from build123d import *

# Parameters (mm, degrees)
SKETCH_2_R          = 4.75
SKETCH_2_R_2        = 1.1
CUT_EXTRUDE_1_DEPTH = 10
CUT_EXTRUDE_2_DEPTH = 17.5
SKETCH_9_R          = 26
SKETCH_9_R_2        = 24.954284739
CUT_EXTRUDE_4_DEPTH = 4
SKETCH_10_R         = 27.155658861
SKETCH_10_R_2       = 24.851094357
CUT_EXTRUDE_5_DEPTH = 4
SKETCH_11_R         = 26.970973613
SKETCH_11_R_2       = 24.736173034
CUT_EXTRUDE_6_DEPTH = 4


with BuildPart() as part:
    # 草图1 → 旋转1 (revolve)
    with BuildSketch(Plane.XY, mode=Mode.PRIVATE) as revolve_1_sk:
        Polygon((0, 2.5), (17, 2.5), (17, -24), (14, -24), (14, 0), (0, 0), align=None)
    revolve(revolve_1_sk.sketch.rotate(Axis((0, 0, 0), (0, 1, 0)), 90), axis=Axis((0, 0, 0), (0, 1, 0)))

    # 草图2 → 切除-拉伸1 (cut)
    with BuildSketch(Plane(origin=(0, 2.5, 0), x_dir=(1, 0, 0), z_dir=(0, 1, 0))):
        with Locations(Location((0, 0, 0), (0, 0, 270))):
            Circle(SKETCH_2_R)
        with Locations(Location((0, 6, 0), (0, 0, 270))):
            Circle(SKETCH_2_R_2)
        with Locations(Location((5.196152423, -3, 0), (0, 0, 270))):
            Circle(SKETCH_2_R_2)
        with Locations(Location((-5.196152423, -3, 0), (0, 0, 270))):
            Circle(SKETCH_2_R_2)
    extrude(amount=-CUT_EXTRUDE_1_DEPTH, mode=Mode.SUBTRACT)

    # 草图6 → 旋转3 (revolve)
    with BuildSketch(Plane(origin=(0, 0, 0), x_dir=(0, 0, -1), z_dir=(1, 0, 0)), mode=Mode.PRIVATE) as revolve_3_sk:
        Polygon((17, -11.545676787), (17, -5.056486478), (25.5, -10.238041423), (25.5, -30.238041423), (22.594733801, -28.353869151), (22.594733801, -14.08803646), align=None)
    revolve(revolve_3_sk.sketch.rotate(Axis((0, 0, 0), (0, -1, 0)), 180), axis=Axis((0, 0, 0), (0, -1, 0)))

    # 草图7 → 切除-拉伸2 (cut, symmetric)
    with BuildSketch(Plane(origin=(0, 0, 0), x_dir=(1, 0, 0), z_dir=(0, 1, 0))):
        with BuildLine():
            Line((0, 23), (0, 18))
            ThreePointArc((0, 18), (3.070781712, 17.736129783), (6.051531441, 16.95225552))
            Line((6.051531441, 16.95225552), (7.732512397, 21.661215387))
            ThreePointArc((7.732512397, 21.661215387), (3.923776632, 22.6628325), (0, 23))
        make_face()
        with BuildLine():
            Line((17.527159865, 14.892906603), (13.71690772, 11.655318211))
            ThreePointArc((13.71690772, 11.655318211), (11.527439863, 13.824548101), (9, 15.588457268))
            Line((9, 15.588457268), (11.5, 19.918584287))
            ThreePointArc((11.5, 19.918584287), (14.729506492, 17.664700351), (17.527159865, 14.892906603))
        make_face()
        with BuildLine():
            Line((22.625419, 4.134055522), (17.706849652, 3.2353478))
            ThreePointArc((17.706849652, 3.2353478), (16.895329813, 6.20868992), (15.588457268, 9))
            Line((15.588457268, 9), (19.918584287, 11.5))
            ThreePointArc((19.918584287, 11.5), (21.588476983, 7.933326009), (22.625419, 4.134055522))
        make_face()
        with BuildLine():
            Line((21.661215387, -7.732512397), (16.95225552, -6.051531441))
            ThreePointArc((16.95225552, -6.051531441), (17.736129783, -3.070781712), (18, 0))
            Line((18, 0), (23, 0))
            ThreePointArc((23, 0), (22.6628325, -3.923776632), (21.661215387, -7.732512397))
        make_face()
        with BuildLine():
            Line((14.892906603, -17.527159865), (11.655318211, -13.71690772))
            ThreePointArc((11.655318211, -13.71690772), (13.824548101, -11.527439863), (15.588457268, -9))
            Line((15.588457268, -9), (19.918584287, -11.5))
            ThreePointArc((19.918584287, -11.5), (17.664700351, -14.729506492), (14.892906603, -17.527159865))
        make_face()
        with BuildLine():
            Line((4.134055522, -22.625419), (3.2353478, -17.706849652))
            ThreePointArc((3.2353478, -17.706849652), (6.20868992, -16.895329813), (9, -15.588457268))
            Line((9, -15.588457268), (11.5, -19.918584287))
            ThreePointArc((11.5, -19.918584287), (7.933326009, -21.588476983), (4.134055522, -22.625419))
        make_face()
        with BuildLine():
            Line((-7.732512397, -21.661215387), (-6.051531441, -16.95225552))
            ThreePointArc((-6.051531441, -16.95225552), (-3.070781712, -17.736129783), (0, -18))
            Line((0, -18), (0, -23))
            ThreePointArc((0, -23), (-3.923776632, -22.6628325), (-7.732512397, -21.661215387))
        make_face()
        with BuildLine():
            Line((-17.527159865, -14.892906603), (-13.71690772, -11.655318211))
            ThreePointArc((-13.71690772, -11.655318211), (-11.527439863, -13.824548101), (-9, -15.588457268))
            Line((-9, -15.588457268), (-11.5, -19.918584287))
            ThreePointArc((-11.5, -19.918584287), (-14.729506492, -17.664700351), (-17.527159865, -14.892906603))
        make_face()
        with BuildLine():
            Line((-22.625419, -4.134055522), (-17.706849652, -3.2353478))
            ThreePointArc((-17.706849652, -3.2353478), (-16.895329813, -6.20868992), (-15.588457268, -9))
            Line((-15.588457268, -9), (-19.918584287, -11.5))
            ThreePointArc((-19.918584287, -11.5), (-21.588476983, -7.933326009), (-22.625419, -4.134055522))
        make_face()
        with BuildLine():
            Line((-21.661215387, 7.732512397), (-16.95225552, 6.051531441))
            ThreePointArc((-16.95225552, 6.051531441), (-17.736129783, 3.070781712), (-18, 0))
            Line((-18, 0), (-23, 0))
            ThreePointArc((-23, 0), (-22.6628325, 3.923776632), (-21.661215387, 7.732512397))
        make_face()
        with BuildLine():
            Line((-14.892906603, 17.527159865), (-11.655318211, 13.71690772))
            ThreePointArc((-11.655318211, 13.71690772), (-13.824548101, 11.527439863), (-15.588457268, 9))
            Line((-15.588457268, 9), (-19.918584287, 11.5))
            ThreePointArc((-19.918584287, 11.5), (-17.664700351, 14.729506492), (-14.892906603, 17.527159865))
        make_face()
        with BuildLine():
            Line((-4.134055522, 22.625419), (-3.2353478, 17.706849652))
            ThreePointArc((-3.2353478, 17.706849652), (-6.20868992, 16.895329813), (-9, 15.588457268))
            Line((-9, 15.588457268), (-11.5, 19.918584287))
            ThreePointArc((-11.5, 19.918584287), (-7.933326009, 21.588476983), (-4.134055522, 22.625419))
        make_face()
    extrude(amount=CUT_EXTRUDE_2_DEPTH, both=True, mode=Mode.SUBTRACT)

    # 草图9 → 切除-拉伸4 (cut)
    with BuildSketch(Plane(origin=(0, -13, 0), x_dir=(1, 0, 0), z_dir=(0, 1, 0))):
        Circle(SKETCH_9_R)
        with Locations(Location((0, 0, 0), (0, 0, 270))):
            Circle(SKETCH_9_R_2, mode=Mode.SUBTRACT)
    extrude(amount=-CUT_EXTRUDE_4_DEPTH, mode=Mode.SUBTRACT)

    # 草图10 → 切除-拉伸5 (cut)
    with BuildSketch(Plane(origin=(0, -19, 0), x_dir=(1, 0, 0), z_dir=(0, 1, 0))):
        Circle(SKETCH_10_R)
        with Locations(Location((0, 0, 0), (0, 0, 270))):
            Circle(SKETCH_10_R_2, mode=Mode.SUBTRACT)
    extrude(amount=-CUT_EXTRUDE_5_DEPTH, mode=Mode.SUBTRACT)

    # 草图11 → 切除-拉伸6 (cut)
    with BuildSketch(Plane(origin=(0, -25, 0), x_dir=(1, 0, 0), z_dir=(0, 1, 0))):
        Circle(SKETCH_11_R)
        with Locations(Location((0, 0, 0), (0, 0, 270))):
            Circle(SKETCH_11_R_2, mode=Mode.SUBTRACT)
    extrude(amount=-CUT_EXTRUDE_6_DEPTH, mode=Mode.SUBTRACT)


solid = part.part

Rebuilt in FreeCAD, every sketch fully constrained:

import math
import FreeCAD as App
import Part
import Sketcher

V = App.Vector
Q = App.Units.Quantity

doc = App.newDocument("Part")
body = doc.addObject("PartDesign::Body", "Body")

# Sketch on XY plane
sketch1 = body.newObject("Sketcher::SketchObject", "Sketch")
sketch1.AttachmentSupport = (doc.getObject("XY_Plane"), [""])
sketch1.MapMode = "FlatFace"
sketch1.addGeometry([
    Part.LineSegment(V(17, 2.5, 0), V(0, 2.5, 0)),  # 0
    Part.LineSegment(V(0, 2.5, 0), V(0, 0, 0)),  # 1
    Part.LineSegment(V(0, 0, 0), V(14, 0, 0)),  # 2
    Part.LineSegment(V(14, 0, 0), V(14, -24, 0)),  # 3
    Part.LineSegment(V(14, -24, 0), V(17, -24, 0)),  # 4
    Part.LineSegment(V(17, -24, 0), V(17, 2.5, 0)),  # 5
], False)
sketch1.addConstraint([
    Sketcher.Constraint("Coincident", 0, 2, 1, 1),
    Sketcher.Constraint("Coincident", 1, 2, 2, 1),
    Sketcher.Constraint("Coincident", 2, 2, 3, 1),
    Sketcher.Constraint("Coincident", 3, 2, 4, 1),
    Sketcher.Constraint("Coincident", 4, 2, 5, 1),
    Sketcher.Constraint("Coincident", 5, 2, 0, 1),
    Sketcher.Constraint("Horizontal", 0),
    Sketcher.Constraint("Vertical", 1),
    Sketcher.Constraint("Horizontal", 2),
    Sketcher.Constraint("Vertical", 3),
    Sketcher.Constraint("Horizontal", 4),
    Sketcher.Constraint("Vertical", 5),
    Sketcher.Constraint("Coincident", 1, 2, -1, 1),
    Sketcher.Constraint("DistanceX", 0, 2, 0, 1, Q("17 mm")),
    Sketcher.Constraint("DistanceX", 2, 1, 2, 2, Q("14 mm")),
    Sketcher.Constraint("DistanceY", 3, 2, 3, 1, Q("24 mm")),
    Sketcher.Constraint("DistanceY", 1, 2, 1, 1, Q("2.5 mm")),
])
revolution = body.newObject("PartDesign::Revolution", "Revolution")
revolution.Profile = sketch1
revolution.ReferenceAxis = (sketch1, ["V_Axis"])
revolution.Angle = 360

# Sketch on XZ plane
sketch2 = body.newObject("Sketcher::SketchObject", "Sketch001")
sketch2.AttachmentSupport = (doc.getObject("XZ_Plane"), [""])
sketch2.MapMode = "FlatFace"
sketch2.AttachmentOffset = App.Placement(V(0, 0, -2.5), App.Rotation())
sketch2.addGeometry([
    Part.Circle(V(0, 0, 0), V(0, 0, 1), 4.75),
    Part.Circle(V(0, -6, 0), V(0, 0, 1), 1.1),
    Part.Circle(V(5.196152, 3, 0), V(0, 0, 1), 1.1),
    Part.Circle(V(-5.196152, 3, 0), V(0, 0, 1), 1.1),
], False)
sketch2.addConstraint([
    Sketcher.Constraint("Coincident", 0, 3, -1, 1),
    Sketcher.Constraint("Equal", 1, 2),
    Sketcher.Constraint("Equal", 2, 3),
    Sketcher.Constraint("Symmetric", 2, 3, 3, 3, -2),
    Sketcher.Constraint("PointOnObject", 1, 3, -2),
    Sketcher.Constraint("Diameter", 0, Q("9.5 mm")),
    Sketcher.Constraint("Diameter", 1, Q("2.2 mm")),
    Sketcher.Constraint("DistanceY", 1, 3, -1, 1, Q("6 mm")),
    Sketcher.Constraint("DistanceY", -1, 1, 2, 3, Q("3 mm")),
    Sketcher.Constraint("DistanceX", -1, 1, 2, 3, Q("5.196152 mm")),
])
pocket1 = body.newObject("PartDesign::Pocket", "Pocket")
pocket1.Profile = sketch2
pocket1.Length = 10
pocket1.Reversed = True

# Sketch on YZ plane
sketch3 = body.newObject("Sketcher::SketchObject", "Sketch002")
sketch3.AttachmentSupport = (doc.getObject("YZ_Plane"), [""])
sketch3.MapMode = "FlatFace"
sketch3.addGeometry([
    Part.LineSegment(V(-5.056486, -17, 0), V(-11.545677, -17, 0)),  # 0
    Part.LineSegment(V(-11.545677, -17, 0), V(-14.088036, -22.594734, 0)),  # 1
    Part.LineSegment(V(-14.088036, -22.594734, 0), V(-28.353869, -22.594734, 0)),  # 2
    Part.LineSegment(V(-28.353869, -22.594734, 0), V(-30.238041, -25.5, 0)),  # 3
    Part.LineSegment(V(-30.238041, -25.5, 0), V(-10.238041, -25.5, 0)),  # 4
    Part.LineSegment(V(-10.238041, -25.5, 0), V(-5.056486, -17, 0)),  # 5
], False)
sketch3.addConstraint([
    Sketcher.Constraint("Coincident", 0, 2, 1, 1),
    Sketcher.Constraint("Coincident", 1, 2, 2, 1),
    Sketcher.Constraint("Coincident", 2, 2, 3, 1),
    Sketcher.Constraint("Coincident", 3, 2, 4, 1),
    Sketcher.Constraint("Coincident", 4, 2, 5, 1),
    Sketcher.Constraint("Coincident", 5, 2, 0, 1),
    Sketcher.Constraint("Horizontal", 0),
    Sketcher.Constraint("Horizontal", 2),
    Sketcher.Constraint("Horizontal", 4),
    Sketcher.Constraint("DistanceX", 4, 1, 4, 2, Q("20 mm")),
    Sketcher.Constraint("DistanceY", 0, 2, -1, 1, Q("17 mm")),
    Sketcher.Constraint("DistanceY", 3, 2, -1, 1, Q("25.5 mm")),
    Sketcher.Constraint("DistanceX", 0, 2, 0, 1, Q("6.48919 mm")),
    Sketcher.Constraint("DistanceX", 2, 2, 2, 1, Q("14.265833 mm")),
    Sketcher.Constraint("DistanceX", 2, 2, -1, 1, Q("28.353869 mm")),
    Sketcher.Constraint("DistanceX", 3, 2, -1, 1, Q("30.238041 mm")),
    Sketcher.Constraint("DistanceX", 1, 2, 0, 2, Q("2.54236 mm")),
    Sketcher.Constraint("Distance", 1, Q("6.145294 mm")),
])
revolution2 = body.newObject("PartDesign::Revolution", "Revolution001")
revolution2.Profile = sketch3
revolution2.ReferenceAxis = (sketch3, ["H_Axis"])
revolution2.Angle = 360

# Sketch on XZ plane
sketch4 = body.newObject("Sketcher::SketchObject", "Sketch003")
sketch4.AttachmentSupport = (doc.getObject("XZ_Plane"), [""])
sketch4.MapMode = "FlatFace"
sketch4.addGeometry([
    Part.LineSegment(V(0, -23, 0), V(0, -18, 0)),  # 0
    Part.ArcOfCircle(Part.Circle(V(0, 0, 0), V(0, 0, 1), 18), math.radians(-90), math.radians(-70.354706)),  # 1
    Part.LineSegment(V(6.051531, -16.952256, 0), V(7.732512, -21.661215, 0)),  # 2
    Part.ArcOfCircle(Part.Circle(V(0, 0, 0), V(0, 0, 1), 23), math.radians(-90), math.radians(-70.354706)),  # 3
    Part.LineSegment(V(13.716908, -11.655318, 0), V(17.52716, -14.892907, 0)),  # 4
    Part.ArcOfCircle(Part.Circle(V(0, 0, 0), V(0, 0, 1), 23), math.radians(-60), math.radians(-40.354706)),  # 5
    Part.LineSegment(V(11.5, -19.918584, 0), V(9, -15.588457, 0)),  # 6
    Part.ArcOfCircle(Part.Circle(V(0, 0, 0), V(0, 0, 1), 18), math.radians(-60), math.radians(-40.354706)),  # 7
    Part.LineSegment(V(17.70685, -3.235348, 0), V(22.625419, -4.134056, 0)),  # 8
    Part.ArcOfCircle(Part.Circle(V(0, 0, 0), V(0, 0, 1), 23), math.radians(-30), math.radians(-10.354706)),  # 9
    Part.LineSegment(V(19.918584, -11.5, 0), V(15.588457, -9, 0)),  # 10
    Part.ArcOfCircle(Part.Circle(V(0, 0, 0), V(0, 0, 1), 18), math.radians(-30), math.radians(-10.354706)),  # 11
    Part.LineSegment(V(16.952256, 6.051531, 0), V(21.661215, 7.732512, 0)),  # 12
    Part.ArcOfCircle(Part.Circle(V(0, 0, 0), V(0, 0, 1), 23), math.radians(0), math.radians(19.645294)),  # 13
    Part.LineSegment(V(23, 0, 0), V(18, 0, 0)),  # 14
    Part.ArcOfCircle(Part.Circle(V(0, 0, 0), V(0, 0, 1), 18), math.radians(0), math.radians(19.645294)),  # 15
    Part.LineSegment(V(11.655318, 13.716908, 0), V(14.892907, 17.52716, 0)),  # 16
    Part.ArcOfCircle(Part.Circle(V(0, 0, 0), V(0, 0, 1), 23), math.radians(30), math.radians(49.645294)),  # 17
    Part.LineSegment(V(19.918584, 11.5, 0), V(15.588457, 9, 0)),  # 18
    Part.ArcOfCircle(Part.Circle(V(0, 0, 0), V(0, 0, 1), 18), math.radians(30), math.radians(49.645294)),  # 19
    Part.LineSegment(V(3.235348, 17.70685, 0), V(4.134056, 22.625419, 0)),  # 20
    Part.ArcOfCircle(Part.Circle(V(0, 0, 0), V(0, 0, 1), 23), math.radians(60), math.radians(79.645294)),  # 21
    Part.LineSegment(V(11.5, 19.918584, 0), V(9, 15.588457, 0)),  # 22
    Part.ArcOfCircle(Part.Circle(V(0, 0, 0), V(0, 0, 1), 18), math.radians(60), math.radians(79.645294)),  # 23
    Part.LineSegment(V(-6.051531, 16.952256, 0), V(-7.732512, 21.661215, 0)),  # 24
    Part.ArcOfCircle(Part.Circle(V(0, 0, 0), V(0, 0, 1), 23), math.radians(90), math.radians(109.645294)),  # 25
    Part.LineSegment(V(0, 23, 0), V(0, 18, 0)),  # 26
    Part.ArcOfCircle(Part.Circle(V(0, 0, 0), V(0, 0, 1), 18), math.radians(90), math.radians(109.645294)),  # 27
    Part.LineSegment(V(-13.716908, 11.655318, 0), V(-17.52716, 14.892907, 0)),  # 28
    Part.ArcOfCircle(Part.Circle(V(0, 0, 0), V(0, 0, 1), 23), math.radians(120), math.radians(139.645294)),  # 29
    Part.LineSegment(V(-11.5, 19.918584, 0), V(-9, 15.588457, 0)),  # 30
    Part.ArcOfCircle(Part.Circle(V(0, 0, 0), V(0, 0, 1), 18), math.radians(120), math.radians(139.645294)),  # 31
    Part.LineSegment(V(-17.70685, 3.235348, 0), V(-22.625419, 4.134056, 0)),  # 32
    Part.ArcOfCircle(Part.Circle(V(0, 0, 0), V(0, 0, 1), 23), math.radians(150), math.radians(169.645294)),  # 33
    Part.LineSegment(V(-19.918584, 11.5, 0), V(-15.588457, 9, 0)),  # 34
    Part.ArcOfCircle(Part.Circle(V(0, 0, 0), V(0, 0, 1), 18), math.radians(150), math.radians(169.645294)),  # 35
    Part.LineSegment(V(-16.952256, -6.051531, 0), V(-21.661215, -7.732512, 0)),  # 36
    Part.ArcOfCircle(Part.Circle(V(0, 0, 0), V(0, 0, 1), 23), math.radians(-180), math.radians(-160.354706)),  # 37
    Part.LineSegment(V(-23, 0, 0), V(-18, 0, 0)),  # 38
    Part.ArcOfCircle(Part.Circle(V(0, 0, 0), V(0, 0, 1), 18), math.radians(180), math.radians(199.645294)),  # 39
    Part.LineSegment(V(-11.655318, -13.716908, 0), V(-14.892907, -17.52716, 0)),  # 40
    Part.ArcOfCircle(Part.Circle(V(0, 0, 0), V(0, 0, 1), 23), math.radians(-150), math.radians(-130.354706)),  # 41
    Part.LineSegment(V(-19.918584, -11.5, 0), V(-15.588457, -9, 0)),  # 42
    Part.ArcOfCircle(Part.Circle(V(0, 0, 0), V(0, 0, 1), 18), math.radians(-150), math.radians(-130.354706)),  # 43
    Part.LineSegment(V(-3.235348, -17.70685, 0), V(-4.134056, -22.625419, 0)),  # 44
    Part.ArcOfCircle(Part.Circle(V(0, 0, 0), V(0, 0, 1), 23), math.radians(-120), math.radians(-100.354706)),  # 45
    Part.LineSegment(V(-11.5, -19.918584, 0), V(-9, -15.588457, 0)),  # 46
    Part.ArcOfCircle(Part.Circle(V(0, 0, 0), V(0, 0, 1), 18), math.radians(-120), math.radians(-100.354706)),  # 47
], False)
sketch4.addConstraint([
    Sketcher.Constraint("Coincident", 0, 2, 1, 1),
    Sketcher.Constraint("Coincident", 1, 2, 2, 1),
    Sketcher.Constraint("Coincident", 2, 2, 3, 2),
    Sketcher.Constraint("Coincident", 3, 1, 0, 1),
    Sketcher.Constraint("Coincident", 4, 2, 5, 2),
    Sketcher.Constraint("Coincident", 5, 1, 6, 1),
    Sketcher.Constraint("Coincident", 6, 2, 7, 1),
    Sketcher.Constraint("Coincident", 7, 2, 4, 1),
    Sketcher.Constraint("Coincident", 8, 2, 9, 2),
    Sketcher.Constraint("Coincident", 9, 1, 10, 1),
    Sketcher.Constraint("Coincident", 10, 2, 11, 1),
    Sketcher.Constraint("Coincident", 11, 2, 8, 1),
    Sketcher.Constraint("Coincident", 12, 2, 13, 2),
    Sketcher.Constraint("Coincident", 13, 1, 14, 1),
    Sketcher.Constraint("Coincident", 14, 2, 15, 1),
    Sketcher.Constraint("Coincident", 15, 2, 12, 1),
    Sketcher.Constraint("Coincident", 16, 2, 17, 2),
    Sketcher.Constraint("Coincident", 17, 1, 18, 1),
    Sketcher.Constraint("Coincident", 18, 2, 19, 1),
    Sketcher.Constraint("Coincident", 19, 2, 16, 1),
    Sketcher.Constraint("Coincident", 20, 2, 21, 2),
    Sketcher.Constraint("Coincident", 21, 1, 22, 1),
    Sketcher.Constraint("Coincident", 22, 2, 23, 1),
    Sketcher.Constraint("Coincident", 23, 2, 20, 1),
    Sketcher.Constraint("Coincident", 24, 2, 25, 2),
    Sketcher.Constraint("Coincident", 25, 1, 26, 1),
    Sketcher.Constraint("Coincident", 26, 2, 27, 1),
    Sketcher.Constraint("Coincident", 27, 2, 24, 1),
    Sketcher.Constraint("Coincident", 28, 2, 29, 2),
    Sketcher.Constraint("Coincident", 29, 1, 30, 1),
    Sketcher.Constraint("Coincident", 30, 2, 31, 1),
    Sketcher.Constraint("Coincident", 31, 2, 28, 1),
    Sketcher.Constraint("Coincident", 32, 2, 33, 2),
    Sketcher.Constraint("Coincident", 33, 1, 34, 1),
    Sketcher.Constraint("Coincident", 34, 2, 35, 1),
    Sketcher.Constraint("Coincident", 35, 2, 32, 1),
    Sketcher.Constraint("Coincident", 36, 2, 37, 2),
    Sketcher.Constraint("Coincident", 37, 1, 38, 1),
    Sketcher.Constraint("Coincident", 38, 2, 39, 1),
    Sketcher.Constraint("Coincident", 39, 2, 36, 1),
    Sketcher.Constraint("Coincident", 40, 2, 41, 2),
    Sketcher.Constraint("Coincident", 41, 1, 42, 1),
    Sketcher.Constraint("Coincident", 42, 2, 43, 1),
    Sketcher.Constraint("Coincident", 43, 2, 40, 1),
    Sketcher.Constraint("Coincident", 44, 2, 45, 2),
    Sketcher.Constraint("Coincident", 45, 1, 46, 1),
    Sketcher.Constraint("Coincident", 46, 2, 47, 1),
    Sketcher.Constraint("Coincident", 47, 2, 44, 1),
    Sketcher.Constraint("Vertical", 0),
    Sketcher.Constraint("Horizontal", 14),
    Sketcher.Constraint("Vertical", 26),
    Sketcher.Constraint("Horizontal", 38),
    Sketcher.Constraint("Coincident", 1, 3, -1, 1),
    Sketcher.Constraint("Coincident", 3, 3, -1, 1),
    Sketcher.Constraint("Coincident", 5, 3, -1, 1),
    Sketcher.Constraint("Coincident", 7, 3, -1, 1),
    Sketcher.Constraint("Coincident", 9, 3, -1, 1),
    Sketcher.Constraint("Coincident", 11, 3, -1, 1),
    Sketcher.Constraint("Coincident", 13, 3, -1, 1),
    Sketcher.Constraint("Coincident", 15, 3, -1, 1),
    Sketcher.Constraint("Coincident", 17, 3, -1, 1),
    Sketcher.Constraint("Coincident", 19, 3, -1, 1),
    Sketcher.Constraint("Coincident", 21, 3, -1, 1),
    Sketcher.Constraint("Coincident", 23, 3, -1, 1),
    Sketcher.Constraint("Coincident", 25, 3, -1, 1),
    Sketcher.Constraint("Coincident", 27, 3, -1, 1),
    Sketcher.Constraint("Coincident", 29, 3, -1, 1),
    Sketcher.Constraint("Coincident", 31, 3, -1, 1),
    Sketcher.Constraint("Coincident", 33, 3, -1, 1),
    Sketcher.Constraint("Coincident", 35, 3, -1, 1),
    Sketcher.Constraint("Coincident", 37, 3, -1, 1),
    Sketcher.Constraint("Coincident", 39, 3, -1, 1),
    Sketcher.Constraint("Coincident", 41, 3, -1, 1),
    Sketcher.Constraint("Coincident", 43, 3, -1, 1),
    Sketcher.Constraint("Coincident", 45, 3, -1, 1),
    Sketcher.Constraint("Coincident", 47, 3, -1, 1),
    Sketcher.Constraint("Equal", 3, 5),
    Sketcher.Constraint("Equal", 1, 7),
    Sketcher.Constraint("Equal", 5, 9),
    Sketcher.Constraint("Equal", 7, 11),
    Sketcher.Constraint("Equal", 9, 13),
    Sketcher.Constraint("Equal", 11, 15),
    Sketcher.Constraint("Equal", 13, 17),
    Sketcher.Constraint("Equal", 15, 19),
    Sketcher.Constraint("Equal", 17, 21),
    Sketcher.Constraint("Equal", 19, 23),
    Sketcher.Constraint("Equal", 21, 25),
    Sketcher.Constraint("Equal", 23, 27),
    Sketcher.Constraint("Equal", 25, 29),
    Sketcher.Constraint("Equal", 27, 31),
    Sketcher.Constraint("Equal", 29, 33),
    Sketcher.Constraint("Equal", 31, 35),
    Sketcher.Constraint("Equal", 33, 37),
    Sketcher.Constraint("Equal", 35, 39),
    Sketcher.Constraint("Equal", 37, 41),
    Sketcher.Constraint("Equal", 39, 43),
    Sketcher.Constraint("Equal", 41, 45),
    Sketcher.Constraint("Equal", 43, 47),
    Sketcher.Constraint("PointOnObject", 0, 2, -2),
    Sketcher.Constraint("PointOnObject", 13, 1, -1),
    Sketcher.Constraint("PointOnObject", 25, 1, -2),
    Sketcher.Constraint("PointOnObject", 37, 1, -1),
    Sketcher.Constraint("Perpendicular", 2, 12),
    Sketcher.Constraint("Perpendicular", 4, 16),
    Sketcher.Constraint("Perpendicular", 6, 18),
    Sketcher.Constraint("Perpendicular", 8, 20),
    Sketcher.Constraint("Perpendicular", 10, 22),
    Sketcher.Constraint("Perpendicular", 12, 24),
    Sketcher.Constraint("Perpendicular", 16, 28),
    Sketcher.Constraint("Perpendicular", 18, 30),
    Sketcher.Constraint("Perpendicular", 20, 32),
    Sketcher.Constraint("Perpendicular", 22, 34),
    Sketcher.Constraint("Perpendicular", 24, 36),
    Sketcher.Constraint("Perpendicular", 28, 40),
    Sketcher.Constraint("Perpendicular", 30, 42),
    Sketcher.Constraint("Perpendicular", 32, 44),
    Sketcher.Constraint("Perpendicular", 34, 46),
    Sketcher.Constraint("Horizontal", 21, 1, 29, 1),
    Sketcher.Constraint("Horizontal", 22, 2, 30, 2),
    Sketcher.Constraint("Horizontal", 17, 1, 33, 1),
    Sketcher.Constraint("Horizontal", 9, 1, 41, 1),
    Sketcher.Constraint("Horizontal", 5, 1, 45, 1),
    Sketcher.Constraint("Vertical", 9, 1, 17, 1),
    Sketcher.Constraint("Vertical", 5, 1, 21, 1),
    Sketcher.Constraint("Radius", 1, Q("18 mm")),
    Sketcher.Constraint("Radius", 3, Q("23 mm")),
    Sketcher.Constraint("Angle", 6, Q("120 deg")),
    Sketcher.Constraint("DistanceX", -1, 1, 6, 2, Q("9 mm")),
    Sketcher.Constraint("DistanceY", 10, 2, -1, 1, Q("9 mm")),
    Sketcher.Constraint("DistanceX", -1, 1, 1, 2, Q("6.051531 mm")),
    Sketcher.Constraint("DistanceX", -1, 1, 4, 2, Q("17.52716 mm")),
    Sketcher.Constraint("DistanceY", 7, 2, -1, 1, Q("11.655318 mm")),
    Sketcher.Constraint("DistanceX", -1, 1, 8, 2, Q("22.625419 mm")),
    Sketcher.Constraint("DistanceX", -1, 1, 11, 2, Q("17.70685 mm")),
    Sketcher.Constraint("DistanceY", -1, 1, 15, 2, Q("6.051531 mm")),
    Sketcher.Constraint("DistanceY", -1, 1, 16, 2, Q("17.52716 mm")),
    Sketcher.Constraint("DistanceY", -1, 1, 20, 2, Q("22.625419 mm")),
    Sketcher.Constraint("DistanceX", 27, 2, -1, 1, Q("6.051531 mm")),
    Sketcher.Constraint("DistanceX", 28, 2, -1, 1, Q("17.52716 mm")),
    Sketcher.Constraint("DistanceX", 32, 2, -1, 1, Q("22.625419 mm")),
    Sketcher.Constraint("DistanceY", 39, 2, -1, 1, Q("6.051531 mm")),
    Sketcher.Constraint("DistanceY", 40, 2, -1, 1, Q("17.52716 mm")),
    Sketcher.Constraint("DistanceY", 44, 2, -1, 1, Q("22.625419 mm")),
    Sketcher.Constraint("DistanceX", -1, 1, 2, 2, Q("7.732512 mm")),
])
pocket2 = body.newObject("PartDesign::Pocket", "Pocket001")
pocket2.Profile = sketch4
pocket2.Length = 35
pocket2.Midplane = True

# Sketch on XZ plane
sketch5 = body.newObject("Sketcher::SketchObject", "Sketch004")
sketch5.AttachmentSupport = (doc.getObject("XZ_Plane"), [""])
sketch5.MapMode = "FlatFace"
sketch5.AttachmentOffset = App.Placement(V(0, 0, 13), App.Rotation())
sketch5.addGeometry([
    Part.Circle(V(0, 0, 0), V(0, 0, 1), 26),
    Part.Circle(V(0, 0, 0), V(0, 0, 1), 24.954285),
], False)
sketch5.addConstraint([
    Sketcher.Constraint("Coincident", 0, 3, -1, 1),
    Sketcher.Constraint("Coincident", 1, 3, -1, 1),
    Sketcher.Constraint("Diameter", 0, Q("52 mm")),
    Sketcher.Constraint("Diameter", 1, Q("49.908569 mm")),
])
pocket3 = body.newObject("PartDesign::Pocket", "Pocket002")
pocket3.Profile = sketch5
pocket3.Length = 4
pocket3.Reversed = True

# Sketch on XZ plane
sketch6 = body.newObject("Sketcher::SketchObject", "Sketch005")
sketch6.AttachmentSupport = (doc.getObject("XZ_Plane"), [""])
sketch6.MapMode = "FlatFace"
sketch6.AttachmentOffset = App.Placement(V(0, 0, 19), App.Rotation())
sketch6.addGeometry([
    Part.Circle(V(0, 0, 0), V(0, 0, 1), 27.155659),
    Part.Circle(V(0, 0, 0), V(0, 0, 1), 24.851094),
], False)
sketch6.addConstraint([
    Sketcher.Constraint("Coincident", 0, 3, -1, 1),
    Sketcher.Constraint("Coincident", 1, 3, -1, 1),
    Sketcher.Constraint("Diameter", 1, Q("49.702189 mm")),
    Sketcher.Constraint("Diameter", 0, Q("54.311318 mm")),
])
pocket4 = body.newObject("PartDesign::Pocket", "Pocket003")
pocket4.Profile = sketch6
pocket4.Length = 4
pocket4.Reversed = True

# Sketch on XZ plane
sketch7 = body.newObject("Sketcher::SketchObject", "Sketch006")
sketch7.AttachmentSupport = (doc.getObject("XZ_Plane"), [""])
sketch7.MapMode = "FlatFace"
sketch7.AttachmentOffset = App.Placement(V(0, 0, 25), App.Rotation())
sketch7.addGeometry([
    Part.Circle(V(0, 0, 0), V(0, 0, 1), 26.970974),
    Part.Circle(V(0, 0, 0), V(0, 0, 1), 24.736173),
], False)
sketch7.addConstraint([
    Sketcher.Constraint("Coincident", 0, 3, -1, 1),
    Sketcher.Constraint("Coincident", 1, 3, -1, 1),
    Sketcher.Constraint("Diameter", 0, Q("53.941947 mm")),
    Sketcher.Constraint("Diameter", 1, Q("49.472346 mm")),
])
pocket5 = body.newObject("PartDesign::Pocket", "Pocket004")
pocket5.Profile = sketch7
pocket5.Length = 4
pocket5.Reversed = True

doc.recompute()
